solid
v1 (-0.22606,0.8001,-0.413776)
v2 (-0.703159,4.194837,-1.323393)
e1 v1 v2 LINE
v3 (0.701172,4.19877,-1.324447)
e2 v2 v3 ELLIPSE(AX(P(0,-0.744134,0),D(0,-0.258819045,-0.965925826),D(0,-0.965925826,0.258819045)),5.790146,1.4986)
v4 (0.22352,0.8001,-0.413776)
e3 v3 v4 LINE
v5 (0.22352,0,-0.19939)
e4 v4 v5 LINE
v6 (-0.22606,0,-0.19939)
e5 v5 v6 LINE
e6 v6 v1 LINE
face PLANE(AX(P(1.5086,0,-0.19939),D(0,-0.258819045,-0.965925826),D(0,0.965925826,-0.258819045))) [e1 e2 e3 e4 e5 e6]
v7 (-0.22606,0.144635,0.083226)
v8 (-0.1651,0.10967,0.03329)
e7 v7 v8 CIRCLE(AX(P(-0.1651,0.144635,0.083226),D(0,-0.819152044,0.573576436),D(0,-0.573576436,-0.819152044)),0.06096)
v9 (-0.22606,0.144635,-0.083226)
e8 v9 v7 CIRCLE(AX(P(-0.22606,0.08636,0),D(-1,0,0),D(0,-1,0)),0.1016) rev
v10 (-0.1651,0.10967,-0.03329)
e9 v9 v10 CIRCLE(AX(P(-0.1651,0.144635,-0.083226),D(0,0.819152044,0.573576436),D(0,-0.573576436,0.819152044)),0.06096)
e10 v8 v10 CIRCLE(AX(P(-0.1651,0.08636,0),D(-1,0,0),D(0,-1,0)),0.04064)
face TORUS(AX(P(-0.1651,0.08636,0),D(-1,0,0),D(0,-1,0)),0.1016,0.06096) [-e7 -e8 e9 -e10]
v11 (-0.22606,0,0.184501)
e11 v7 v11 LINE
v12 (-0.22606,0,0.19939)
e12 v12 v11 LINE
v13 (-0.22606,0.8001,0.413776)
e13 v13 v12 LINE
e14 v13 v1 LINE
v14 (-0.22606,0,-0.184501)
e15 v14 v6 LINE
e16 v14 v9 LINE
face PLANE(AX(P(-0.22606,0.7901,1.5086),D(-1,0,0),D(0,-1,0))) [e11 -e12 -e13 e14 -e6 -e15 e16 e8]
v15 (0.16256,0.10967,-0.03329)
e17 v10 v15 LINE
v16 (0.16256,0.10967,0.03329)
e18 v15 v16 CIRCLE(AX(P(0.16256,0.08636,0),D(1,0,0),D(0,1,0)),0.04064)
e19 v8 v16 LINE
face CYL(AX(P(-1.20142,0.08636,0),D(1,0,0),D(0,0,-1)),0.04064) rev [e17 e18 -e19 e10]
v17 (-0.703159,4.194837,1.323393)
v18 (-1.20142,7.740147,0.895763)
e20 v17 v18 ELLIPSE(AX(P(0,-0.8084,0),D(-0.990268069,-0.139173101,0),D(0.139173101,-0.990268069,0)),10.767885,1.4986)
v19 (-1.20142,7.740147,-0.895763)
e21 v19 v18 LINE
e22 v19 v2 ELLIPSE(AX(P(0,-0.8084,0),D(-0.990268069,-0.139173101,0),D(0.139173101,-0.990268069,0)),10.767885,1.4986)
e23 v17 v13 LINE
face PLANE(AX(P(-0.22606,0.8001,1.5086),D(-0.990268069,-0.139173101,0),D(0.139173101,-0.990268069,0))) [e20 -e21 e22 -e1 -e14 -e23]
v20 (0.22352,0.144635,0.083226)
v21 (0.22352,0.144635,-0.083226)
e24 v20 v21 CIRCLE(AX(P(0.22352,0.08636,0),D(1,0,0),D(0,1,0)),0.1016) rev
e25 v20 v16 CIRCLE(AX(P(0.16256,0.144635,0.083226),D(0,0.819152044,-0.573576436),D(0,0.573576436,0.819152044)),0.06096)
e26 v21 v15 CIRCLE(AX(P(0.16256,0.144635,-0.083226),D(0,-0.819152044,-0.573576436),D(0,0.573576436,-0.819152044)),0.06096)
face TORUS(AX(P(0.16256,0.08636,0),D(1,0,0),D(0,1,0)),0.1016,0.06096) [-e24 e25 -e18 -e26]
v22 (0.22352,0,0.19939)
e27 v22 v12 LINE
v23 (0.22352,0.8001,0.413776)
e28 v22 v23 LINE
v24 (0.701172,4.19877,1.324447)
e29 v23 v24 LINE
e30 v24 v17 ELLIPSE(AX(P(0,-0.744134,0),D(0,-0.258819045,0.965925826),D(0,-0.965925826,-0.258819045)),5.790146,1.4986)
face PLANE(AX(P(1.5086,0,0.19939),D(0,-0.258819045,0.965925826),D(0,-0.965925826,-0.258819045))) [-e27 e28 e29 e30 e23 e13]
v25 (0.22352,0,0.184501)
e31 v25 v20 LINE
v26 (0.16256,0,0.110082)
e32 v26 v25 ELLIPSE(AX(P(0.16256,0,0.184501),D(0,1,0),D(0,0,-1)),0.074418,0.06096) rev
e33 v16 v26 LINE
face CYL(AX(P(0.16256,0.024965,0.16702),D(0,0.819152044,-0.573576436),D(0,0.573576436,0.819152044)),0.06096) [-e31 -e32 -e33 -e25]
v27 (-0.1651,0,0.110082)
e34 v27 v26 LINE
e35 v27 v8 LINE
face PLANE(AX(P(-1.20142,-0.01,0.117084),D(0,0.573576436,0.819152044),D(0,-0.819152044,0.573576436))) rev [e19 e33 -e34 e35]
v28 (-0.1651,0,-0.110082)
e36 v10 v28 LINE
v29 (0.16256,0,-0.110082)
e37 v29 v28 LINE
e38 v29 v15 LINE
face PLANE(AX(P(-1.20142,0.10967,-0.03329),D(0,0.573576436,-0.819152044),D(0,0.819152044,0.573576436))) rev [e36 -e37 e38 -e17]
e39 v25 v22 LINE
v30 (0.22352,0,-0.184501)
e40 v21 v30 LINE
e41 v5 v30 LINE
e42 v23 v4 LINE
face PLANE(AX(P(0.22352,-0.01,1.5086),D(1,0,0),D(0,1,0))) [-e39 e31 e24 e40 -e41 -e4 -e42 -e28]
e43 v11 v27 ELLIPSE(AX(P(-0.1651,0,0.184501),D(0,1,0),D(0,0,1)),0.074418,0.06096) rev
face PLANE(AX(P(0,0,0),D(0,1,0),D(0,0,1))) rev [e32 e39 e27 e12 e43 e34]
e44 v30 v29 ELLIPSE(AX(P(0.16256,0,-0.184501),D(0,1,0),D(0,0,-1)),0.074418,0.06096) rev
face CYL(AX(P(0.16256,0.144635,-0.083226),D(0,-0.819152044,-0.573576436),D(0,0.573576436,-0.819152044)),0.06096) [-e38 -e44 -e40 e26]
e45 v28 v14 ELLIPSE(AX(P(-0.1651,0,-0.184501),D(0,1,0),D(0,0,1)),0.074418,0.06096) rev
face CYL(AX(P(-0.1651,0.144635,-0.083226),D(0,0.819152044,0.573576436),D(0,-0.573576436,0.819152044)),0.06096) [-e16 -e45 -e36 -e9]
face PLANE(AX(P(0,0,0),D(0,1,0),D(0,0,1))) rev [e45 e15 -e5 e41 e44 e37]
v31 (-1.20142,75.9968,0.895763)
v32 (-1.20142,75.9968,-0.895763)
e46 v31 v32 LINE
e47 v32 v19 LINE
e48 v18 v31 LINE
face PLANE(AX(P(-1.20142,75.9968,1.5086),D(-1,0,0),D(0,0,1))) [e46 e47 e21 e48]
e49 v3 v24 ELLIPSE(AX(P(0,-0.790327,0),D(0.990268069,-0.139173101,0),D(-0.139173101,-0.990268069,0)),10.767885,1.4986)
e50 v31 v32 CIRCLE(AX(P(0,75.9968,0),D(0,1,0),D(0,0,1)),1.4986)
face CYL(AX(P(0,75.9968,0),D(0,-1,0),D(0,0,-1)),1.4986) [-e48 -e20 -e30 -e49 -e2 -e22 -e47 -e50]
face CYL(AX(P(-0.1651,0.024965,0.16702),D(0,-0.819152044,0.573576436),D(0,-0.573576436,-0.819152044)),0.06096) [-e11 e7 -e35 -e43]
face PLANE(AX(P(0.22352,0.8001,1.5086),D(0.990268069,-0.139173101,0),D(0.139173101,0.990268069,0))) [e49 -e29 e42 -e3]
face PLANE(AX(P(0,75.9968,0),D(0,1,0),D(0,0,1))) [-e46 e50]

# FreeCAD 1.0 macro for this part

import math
import FreeCAD as App
import Part
import Sketcher
Q = App.Units.Quantity


def edges_at(feature, points):
    """Names of the edges that pass closest to the given points."""
    edges = feature.Shape.Edges
    near = lambda p: min(range(len(edges)), key=lambda i: edges[i].distToShape(Part.Vertex(*p))[0])
    return sorted({f"Edge{near(p) + 1}" for p in points})

doc = App.newDocument("Part")
body = doc.addObject("PartDesign::Body", "Body")

sketch1 = body.newObject("Sketcher::SketchObject", "Sketch")
sketch1.AttachmentSupport = (doc.getObject("XZ_Plane"), [""])
sketch1.MapMode = "FlatFace"
sketch1.addGeometry(Part.Circle(App.Vector(0, 0, 0), App.Vector(0, 0, 1), 1.5), False)
sketch1.addConstraint([
    Sketcher.Constraint("Coincident", 0, 3, -1, 1),
    Sketcher.Constraint("Diameter", 0, Q("0.118 in")),
])
pad1 = body.newObject("PartDesign::Pad", "Pad")
pad1.Profile = sketch1
pad1.Length = Q("2.992 in")
pad1.Reversed = True

sketch2 = body.newObject("Sketcher::SketchObject", "Sketch001")
sketch2.AttachmentSupport = (doc.getObject("XZ_Plane"), [""])
sketch2.MapMode = "FlatFace"
sketch2.addGeometry([
    Part.LineSegment(App.Vector(-4.2, -1.5, 0), App.Vector(-4.2, 1.5, 0)),
    Part.LineSegment(App.Vector(-4.2, 1.5, 0), App.Vector(-1.2, 1.5, 0)),
    Part.LineSegment(App.Vector(-1.2, 1.5, 0), App.Vector(-1.2, -1.5, 0)),
    Part.LineSegment(App.Vector(-1.2, -1.5, 0), App.Vector(-4.2, -1.5, 0)),
], False)
sketch2.addConstraint([
    Sketcher.Constraint("Coincident", 0, 2, 1, 1),
    Sketcher.Constraint("Coincident", 1, 2, 2, 1),
    Sketcher.Constraint("Coincident", 2, 2, 3, 1),
    Sketcher.Constraint("Coincident", 3, 2, 0, 1),
    Sketcher.Constraint("Vertical", 0),
    Sketcher.Constraint("Horizontal", 1),
    Sketcher.Constraint("Vertical", 2),
    Sketcher.Constraint("Horizontal", 3),
    Sketcher.Constraint("Equal", 3, 0),
    Sketcher.Constraint("DistanceX", 1, 1, 1, 2, Q("3.0172 mm")),
    Sketcher.Constraint("DistanceX", 1, 2, -1, 1, Q("0.0473 in")),
    Sketcher.Constraint("DistanceY", -1, 1, 0, 2, Q("1.5086 mm")),
])
pocket1 = body.newObject("PartDesign::Pocket", "Pocket")
pocket1.Profile = sketch2
pocket1.Type = "ThroughAll"
body2 = doc.addObject("PartDesign::Body", "Body001")

sketch3 = body2.newObject("Sketcher::SketchObject", "Sketch002")
sketch3.AttachmentSupport = (doc.getObject("YZ_Plane001"), [""])
sketch3.MapMode = "FlatFace"
sketch3.addGeometry([
    Part.LineSegment(App.Vector(-0.01, 1.4936, 0), App.Vector(0.789, 1.4936, 0)),
    Part.ArcOfCircle(Part.Circle(App.Vector(0.789, 1.5063, 0), App.Vector(0, 0, 1), 0.0127), math.radians(-90), math.radians(-80)),
    Part.LineSegment(App.Vector(0.7912, 1.4938, 0), App.Vector(0.9319, 1.5186, 0)),
    Part.LineSegment(App.Vector(0.9319, 1.5186, 0), App.Vector(-0.01, 1.5086, 0)),
    Part.LineSegment(App.Vector(-0.01, 1.5086, 0), App.Vector(-0.01, 1.4936, 0)),
], False)
sketch3.addConstraint([
    Sketcher.Constraint("Tangent", 0, 2, 1, 1),
    Sketcher.Constraint("Tangent", 1, 2, 2, 1),
    Sketcher.Constraint("Coincident", 2, 2, 3, 1),
    Sketcher.Constraint("Coincident", 3, 2, 4, 1),
    Sketcher.Constraint("Coincident", 4, 2, 0, 1),
    Sketcher.Constraint("Horizontal", 0),
    Sketcher.Constraint("Vertical", 4),
    Sketcher.Constraint("Angle", 2, Q("10 deg")),
    Sketcher.Constraint("Radius", 1, Q("0.0005 in")),
    Sketcher.Constraint("DistanceY", 4, 2, 4, 1, Q("0.015 mm")),
    Sketcher.Constraint("DistanceX", 0, 1, 0, 2, Q("0.798989 mm")),
    Sketcher.Constraint("DistanceY", -1, 1, 1, 3, Q("1.5063 mm")),
    Sketcher.Constraint("DistanceY", -1, 1, 2, 2, Q("1.5186 mm")),
    Sketcher.Constraint("DistanceX", 3, 2, -1, 1, Q("0.01 mm")),
])
pad2 = body2.newObject("PartDesign::Pad", "Pad001")
pad2.Profile = sketch3
pad2.Length = 3.0172
pad2.Midplane = True
body3 = doc.addObject("PartDesign::Body", "Body002")
body3.AllowCompound = True

sketch4 = body3.newObject("Sketcher::SketchObject", "Sketch003")
sketch4.AttachmentSupport = (doc.getObject("YZ_Plane002"), [""])
sketch4.MapMode = "FlatFace"
sketch4.addGeometry([
    Part.LineSegment(App.Vector(0.789, -1.4936, 0), App.Vector(-0.01, -1.4936, 0)),
    Part.LineSegment(App.Vector(-0.01, -1.4936, 0), App.Vector(-0.01, -1.5086, 0)),
    Part.LineSegment(App.Vector(-0.01, -1.5086, 0), App.Vector(0.9319, -1.5186, 0)),
    Part.LineSegment(App.Vector(0.9319, -1.5186, 0), App.Vector(0.7912, -1.4938, 0)),
    Part.ArcOfCircle(Part.Circle(App.Vector(0.789, -1.5063, 0), App.Vector(0, 0, 1), 0.0127), math.radians(80), math.radians(90)),
], False)
sketch4.addConstraint([
    Sketcher.Constraint("Coincident", 0, 2, 1, 1),
    Sketcher.Constraint("Coincident", 1, 2, 2, 1),
    Sketcher.Constraint("Coincident", 2, 2, 3, 1),
    Sketcher.Constraint("Tangent", 3, 2, 4, 1),
    Sketcher.Constraint("Tangent", 4, 2, 0, 1),
    Sketcher.Constraint("Horizontal", 0),
    Sketcher.Constraint("Vertical", 1),
    Sketcher.Constraint("Angle", 3, Q("170 deg")),
    Sketcher.Constraint("Radius", 4, Q("0.0005 in")),
    Sketcher.Constraint("DistanceY", 1, 2, 1, 1, Q("0.015 mm")),
    Sketcher.Constraint("DistanceX", 0, 2, 0, 1, Q("0.798989 mm")),
    Sketcher.Constraint("DistanceY", 4, 3, -1, 1, Q("1.5063 mm")),
    Sketcher.Constraint("DistanceX", 0, 2, -1, 1, Q("0.01 mm")),
    Sketcher.Constraint("DistanceY", 2, 2, -1, 1, Q("1.5186 mm")),
])
pad3 = body3.newObject("PartDesign::Pad", "Pad002")
pad3.Profile = sketch4
pad3.Length = 3.0172
pad3.Midplane = True
doc.recompute()

boolean = body3.newObject("PartDesign::Boolean", "Boolean")
boolean.Type = "Fuse"
boolean.addObjects([body2])

sketch5 = body3.newObject("Sketcher::SketchObject", "Sketch004")
sketch5.AttachmentSupport = (doc.getObject("YZ_Plane002"), [""])
sketch5.MapMode = "FlatFace"
sketch5.addGeometry([
    Part.LineSegment(App.Vector(0, -0.2, 0), App.Vector(0, 0.2, 0)),
    Part.LineSegment(App.Vector(0, 0.2, 0), App.Vector(4.89, 1.51, 0)),
    Part.LineSegment(App.Vector(4.89, 1.51, 0), App.Vector(-0.03, 1.51, 0)),
    Part.LineSegment(App.Vector(-0.03, 1.51, 0), App.Vector(-0.03, -1.51, 0)),
    Part.LineSegment(App.Vector(-0.03, -1.51, 0), App.Vector(4.89, -1.51, 0)),
    Part.LineSegment(App.Vector(4.89, -1.51, 0), App.Vector(0, -0.2, 0)),
], False)
sketch5.addConstraint([
    Sketcher.Constraint("Coincident", 0, 2, 1, 1),
    Sketcher.Constraint("Coincident", 1, 2, 2, 1),
    Sketcher.Constraint("Coincident", 2, 2, 3, 1),
    Sketcher.Constraint("Coincident", 3, 2, 4, 1),
    Sketcher.Constraint("Coincident", 4, 2, 5, 1),
    Sketcher.Constraint("Coincident", 5, 2, 0, 1),
    Sketcher.Constraint("Vertical", 0),
    Sketcher.Constraint("Horizontal", 2),
    Sketcher.Constraint("Vertical", 3),
    Sketcher.Constraint("Horizontal", 4),
    Sketcher.Constraint("Symmetric", 0, 2, 5, 2, -1, 1),
    Sketcher.Constraint("Symmetric", 1, 2, 4, 2, -1),
    Sketcher.Constraint("Angle", 1, Q("15 deg")),
    Sketcher.Constraint("DistanceY", 0, 1, 0, 2, Q("0.0157 in")),
    Sketcher.Constraint("DistanceY", 3, 2, 3, 1, Q("3.0172 mm")),
    Sketcher.Constraint("DistanceX", 2, 2, 2, 1, Q("4.916038 mm")),
])
pad4 = body3.newObject("PartDesign::Pad", "Pad003")
pad4.Profile = sketch5
pad4.Length = 3.0172
pad4.Midplane = True

sketch6 = body3.newObject("Sketcher::SketchObject", "Sketch005")
sketch6.AttachmentSupport = (doc.getObject("XY_Plane002"), [""])
sketch6.MapMode = "FlatFace"
sketch6.addGeometry([
    Part.LineSegment(App.Vector(0.2, 0.8, 0), App.Vector(0.2, 0, 0)),
    Part.LineSegment(App.Vector(0.2, 0, 0), App.Vector(1.5, 0, 0)),
    Part.LineSegment(App.Vector(1.5, 0, 0), App.Vector(1.5, 0.8, 0)),
    Part.LineSegment(App.Vector(1.5, 0.8, 0), App.Vector(0.2, 0.8, 0)),
    Part.LineSegment(App.Vector(-1.5, 0.8, 0), App.Vector(-1.5, 0, 0)),
    Part.LineSegment(App.Vector(-1.5, 0, 0), App.Vector(-0.2, 0, 0)),
    Part.LineSegment(App.Vector(-0.2, 0, 0), App.Vector(-0.2, 0.8, 0)),
    Part.LineSegment(App.Vector(-0.2, 0.8, 0), App.Vector(-1.5, 0.8, 0)),
], False)
sketch6.addConstraint([
    Sketcher.Constraint("Coincident", 0, 2, 1, 1),
    Sketcher.Constraint("Coincident", 1, 2, 2, 1),
    Sketcher.Constraint("Coincident", 2, 2, 3, 1),
    Sketcher.Constraint("Coincident", 3, 2, 0, 1),
    Sketcher.Constraint("Coincident", 4, 2, 5, 1),
    Sketcher.Constraint("Coincident", 5, 2, 6, 1),
    Sketcher.Constraint("Coincident", 6, 2, 7, 1),
    Sketcher.Constraint("Coincident", 7, 2, 4, 1),
    Sketcher.Constraint("Vertical", 0),
    Sketcher.Constraint("Horizontal", 1),
    Sketcher.Constraint("Vertical", 2),
    Sketcher.Constraint("Horizontal", 3),
    Sketcher.Constraint("Vertical", 4),
    Sketcher.Constraint("Horizontal", 5),
    Sketcher.Constraint("Vertical", 6),
    Sketcher.Constraint("Horizontal", 7),
    Sketcher.Constraint("Horizontal", 1, 2, 4, 2),
    Sketcher.Constraint("Horizontal", 3, 2, 6, 2),
    Sketcher.Constraint("DistanceY", 0, 2, 0, 1, Q("0.0315 in")),
    Sketcher.Constraint("DistanceX", -1, 1, 1, 2, Q("0.059 in")),
    Sketcher.Constraint("DistanceX", 5, 2, -1, 1, Q("0.0089 in")),
    Sketcher.Constraint("DistanceX", 1, 1, 1, 2, Q("1.26508 mm")),
    Sketcher.Constraint("DistanceX", 5, 1, 5, 2, Q("1.29254 mm")),
    Sketcher.Constraint("DistanceY", 0, 2, -1, 1, Q("0.01 mm")),
])
pad5 = body3.newObject("PartDesign::Pad", "Pad004")
pad5.Profile = sketch6
pad5.Length = 3.0172
pad5.Midplane = True

sketch7 = body3.newObject("Sketcher::SketchObject", "Sketch006")
sketch7.AttachmentSupport = (doc.getObject("XY_Plane002"), [""])
sketch7.MapMode = "FlatFace"
sketch7.addGeometry([
    Part.LineSegment(App.Vector(0.2, 0.8, 0), App.Vector(0.2, 0, 0)),
    Part.LineSegment(App.Vector(0.2, 0, 0), App.Vector(1.6, 0, 0)),
    Part.LineSegment(App.Vector(1.6, 0, 0), App.Vector(1.6, 10.8, 0)),
    Part.LineSegment(App.Vector(1.6, 10.8, 0), App.Vector(0.2, 0.8, 0)),
    Part.LineSegment(App.Vector(-0.2, 0, 0), App.Vector(-0.2, 0.8, 0)),
    Part.LineSegment(App.Vector(-0.2, 0.8, 0), App.Vector(-1.3, 8.6, 0)),
    Part.LineSegment(App.Vector(-1.3, 8.6, 0), App.Vector(-1.3, 0, 0)),
    Part.LineSegment(App.Vector(-1.3, 0, 0), App.Vector(-0.2, 0, 0)),
], False)
sketch7.addConstraint([
    Sketcher.Constraint("Coincident", 0, 2, 1, 1),
    Sketcher.Constraint("Coincident", 1, 2, 2, 1),
    Sketcher.Constraint("Coincident", 2, 2, 3, 1),
    Sketcher.Constraint("Coincident", 3, 2, 0, 1),
    Sketcher.Constraint("Coincident", 4, 2, 5, 1),
    Sketcher.Constraint("Coincident", 5, 2, 6, 1),
    Sketcher.Constraint("Coincident", 6, 2, 7, 1),
    Sketcher.Constraint("Coincident", 7, 2, 4, 1),
    Sketcher.Constraint("Vertical", 0),
    Sketcher.Constraint("Horizontal", 1),
    Sketcher.Constraint("Vertical", 2),
    Sketcher.Constraint("Vertical", 4),
    Sketcher.Constraint("Vertical", 6),
    Sketcher.Constraint("Horizontal", 7),
    Sketcher.Constraint("Horizontal", 3, 2, 4, 2),
    Sketcher.Constraint("Horizontal", 1, 2, 6, 2),
    Sketcher.Constraint("Angle", 3, Q("-98 deg")),
    Sketcher.Constraint("Angle", 5, Q("98 deg")),
    Sketcher.Constraint("DistanceX", 1, 1, 1, 2, Q("0.0552 in")),
    Sketcher.Constraint("DistanceX", 7, 1, 7, 2, Q("0.0434 in")),
    Sketcher.Constraint("DistanceX", -1, 1, 1, 2, Q("0.064 in")),
    Sketcher.Constraint("DistanceY", 0, 2, 0, 1, Q("0.8101 mm")),
    Sketcher.Constraint("DistanceY", -1, 1, 3, 2, Q("0.0315 in")),
    Sketcher.Constraint("DistanceX", 4, 2, -1, 1, Q("0.0089 in")),
])
pad6 = body3.newObject("PartDesign::Pad", "Pad005")
pad6.Profile = sketch7
pad6.Length = 3.0172
pad6.Midplane = True
doc.recompute()

boolean2 = body.newObject("PartDesign::Boolean", "Boolean001")
boolean2.Type = "Cut"
boolean2.addObjects([body3])

sketch8 = body.newObject("Sketcher::SketchObject", "Sketch007")
sketch8.AttachmentSupport = (doc.getObject("YZ_Plane"), [""])
sketch8.MapMode = "FlatFace"
sketch8.AttachmentOffset = App.Placement(App.Vector(0, 0, -0.0473 * 25.4), App.Rotation())
sketch8.addGeometry([
    Part.LineSegment(App.Vector(-0.01, -0.117, 0), App.Vector(0.11, -0.033, 0)),
    Part.ArcOfCircle(Part.Circle(App.Vector(0.086, 0, 0), App.Vector(0, 0, 1), 0.041), math.radians(-55), math.radians(55)),
    Part.LineSegment(App.Vector(0.11, 0.033, 0), App.Vector(-0.01, 0.117, 0)),
    Part.LineSegment(App.Vector(-0.01, 0.117, 0), App.Vector(-0.01, -0.117, 0)),
], False)
sketch8.addConstraint([
    Sketcher.Constraint("Tangent", 0, 2, 1, 1),
    Sketcher.Constraint("Tangent", 1, 2, 2, 1),
    Sketcher.Constraint("Coincident", 2, 2, 3, 1),
    Sketcher.Constraint("Coincident", 3, 2, 0, 1),
    Sketcher.Constraint("Vertical", 3),
    Sketcher.Constraint("Symmetric", 0, 2, 1, 2, -1),
    Sketcher.Constraint("Angle", 0, Q("35 deg")),
    Sketcher.Constraint("Radius", 1, Q("0.0016 in")),
    Sketcher.Constraint("DistanceX", -1, 1, 1, 3, Q("0.0034 in")),
    Sketcher.Constraint("DistanceY", 3, 2, 3, 1, Q("0.234169 mm")),
])

sketch9 = body.newObject("Sketcher::SketchObject", "Sketch008")
sketch9.AttachmentSupport = (doc.getObject("XY_Plane"), [""])
sketch9.MapMode = "FlatFace"
sketch9.addGeometry(Part.LineSegment(App.Vector(-1.2, 0.1, 0), App.Vector(1.5, 0.1, 0)), False)
sketch9.addConstraint([
    Sketcher.Constraint("Horizontal", 0),
    Sketcher.Constraint("DistanceX", 0, 1, 0, 2, Q("0.1063 in")),
    Sketcher.Constraint("DistanceY", -1, 1, 0, 1, Q("0.005 in")),
    Sketcher.Constraint("DistanceX", -1, 1, 0, 2, Q("0.059 in")),
])
doc.recompute()

subtractivepipe = body.newObject("PartDesign::SubtractivePipe", "SubtractivePipe")
subtractivepipe.Profile = sketch8
subtractivepipe.Spine = (sketch9, ["Edge1"])
doc.recompute()

fillet = body.newObject("PartDesign::Fillet", "Fillet")
fillet.Base = (subtractivepipe, edges_at(subtractivepipe, [(-0.226, 0.127, 0), (-0.226, 0.055, -0.072), (-0.226, 0.055, 0.072)]))
fillet.Radius = Q("0.0024 in")
doc.recompute()

fillet2 = body.newObject("PartDesign::Fillet", "Fillet001")
fillet2.Base = (fillet, edges_at(fillet, [(0.224, 0.055, -0.072), (0.224, 0.055, 0.072), (0.224, 0.127, 0)]))
fillet2.Radius = Q("0.0024 in")

doc.recompute()
